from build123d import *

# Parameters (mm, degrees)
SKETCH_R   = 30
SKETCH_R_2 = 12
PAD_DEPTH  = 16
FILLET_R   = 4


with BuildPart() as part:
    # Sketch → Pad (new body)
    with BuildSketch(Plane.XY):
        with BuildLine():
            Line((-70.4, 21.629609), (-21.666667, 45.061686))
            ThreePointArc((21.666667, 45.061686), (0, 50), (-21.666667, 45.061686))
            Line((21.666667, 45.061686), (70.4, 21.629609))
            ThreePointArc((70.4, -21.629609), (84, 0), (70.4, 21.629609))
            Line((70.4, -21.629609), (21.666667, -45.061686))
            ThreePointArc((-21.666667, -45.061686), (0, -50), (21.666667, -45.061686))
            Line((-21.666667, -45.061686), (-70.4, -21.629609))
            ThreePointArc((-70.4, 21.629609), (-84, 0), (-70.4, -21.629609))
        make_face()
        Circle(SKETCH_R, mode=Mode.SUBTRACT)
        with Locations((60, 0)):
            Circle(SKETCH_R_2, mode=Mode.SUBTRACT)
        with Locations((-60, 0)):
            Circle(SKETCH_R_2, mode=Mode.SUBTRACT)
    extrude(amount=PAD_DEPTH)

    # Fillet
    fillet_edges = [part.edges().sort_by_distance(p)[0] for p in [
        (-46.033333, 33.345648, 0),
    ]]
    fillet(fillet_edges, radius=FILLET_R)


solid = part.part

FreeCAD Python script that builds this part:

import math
import FreeCAD as App
import Part
import Sketcher
from FreeCAD import Vector


def edges_at(feature, points):
    """Names of the edges that pass closest to the given points."""
    edges = feature.Shape.Edges
    near = lambda p: min(range(len(edges)), key=lambda i: edges[i].distToShape(Part.Vertex(*p))[0])
    return sorted({f"Edge{near(p) + 1}" for p in points})

doc = App.newDocument("Part")
body = doc.addObject("PartDesign::Body", "Body")

# Sketch on XY plane
sketch1 = doc.addObject("Sketcher::SketchObject", "Sketch")
body.addObject(sketch1)
sketch1.AttachmentSupport = (doc.XY_Plane, [""])
sketch1.MapMode = "FlatFace"
sketch1.addGeometry([
    Part.LineSegment(Vector(-22, 45, 0), Vector(-70, 22, 0)),  # 0
    Part.ArcOfCircle(Part.Circle(Vector(-60, 0, 0), Vector(0, 0, 1), 24), math.radians(116), math.radians(244)),  # 1
    Part.LineSegment(Vector(-70, -22, 0), Vector(-22, -45, 0)),  # 2
    Part.ArcOfCircle(Part.Circle(Vector(0, 0, 0), Vector(0, 0, 1), 50), math.radians(-116), math.radians(-64)),  # 3
    Part.LineSegment(Vector(22, -45, 0), Vector(70, -22, 0)),  # 4
    Part.ArcOfCircle(Part.Circle(Vector(60, 0, 0), Vector(0, 0, 1), 24), math.radians(-64), math.radians(64)),  # 5
    Part.LineSegment(Vector(70, 22, 0), Vector(22, 45, 0)),  # 6
    Part.ArcOfCircle(Part.Circle(Vector(0, 0, 0), Vector(0, 0, 1), 50), math.radians(64), math.radians(116)),  # 7
    Part.Circle(Vector(60, 0, 0), Vector(0, 0, 1), 12),  # 8
    Part.Circle(Vector(0, 0, 0), Vector(0, 0, 1), 30),  # 9
    Part.Circle(Vector(-60, 0, 0), Vector(0, 0, 1), 12),  # 10
], False)
sketch1.addConstraint([
    Sketcher.Constraint("Tangent", 0, 2, 1, 1),
    Sketcher.Constraint("Tangent", 1, 2, 2, 1),
    Sketcher.Constraint("Tangent", 2, 2, 3, 1),
    Sketcher.Constraint("Tangent", 3, 2, 4, 1),
    Sketcher.Constraint("Tangent", 4, 2, 5, 1),
    Sketcher.Constraint("Tangent", 5, 2, 6, 1),
    Sketcher.Constraint("Tangent", 6, 2, 7, 1),
    Sketcher.Constraint("Tangent", 7, 2, 0, 1),
    Sketcher.Constraint("Coincident", 3, 3, -1, 1),
    Sketcher.Constraint("Coincident", 7, 3, -1, 1),
    Sketcher.Constraint("Coincident", 9, 3, -1, 1),
    Sketcher.Constraint("Coincident", 8, 3, 5, 3),
    Sketcher.Constraint("Coincident", 10, 3, 1, 3),
    Sketcher.Constraint("Equal", 1, 5),
    Sketcher.Constraint("Equal", 3, 7),
    Sketcher.Constraint("Equal", 8, 10),
    Sketcher.Constraint("Symmetric", 1, 3, 5, 3, -1, 1),
    Sketcher.Constraint("PointOnObject", 1, 3, -1),
    Sketcher.Constraint("Diameter", 8, 24.0),
    Sketcher.Constraint("Diameter", 9, 60.0),
    Sketcher.Constraint("Radius", 1, 23.999999),
    Sketcher.Constraint("Radius", 3, 50.0),
    Sketcher.Constraint("DistanceX", 1, 3, -1, 1, 60.000001),
])
pad1 = doc.addObject("PartDesign::Pad", "Pad")
body.addObject(pad1)
pad1.Profile = sketch1
pad1.Length = 16
doc.recompute()

fillet = doc.addObject("PartDesign::Fillet", "Fillet")
body.addObject(fillet)
fillet.Base = (pad1, edges_at(pad1, [(-46.033, 33.346, 0)]))
fillet.Radius = 4

doc.recompute()
